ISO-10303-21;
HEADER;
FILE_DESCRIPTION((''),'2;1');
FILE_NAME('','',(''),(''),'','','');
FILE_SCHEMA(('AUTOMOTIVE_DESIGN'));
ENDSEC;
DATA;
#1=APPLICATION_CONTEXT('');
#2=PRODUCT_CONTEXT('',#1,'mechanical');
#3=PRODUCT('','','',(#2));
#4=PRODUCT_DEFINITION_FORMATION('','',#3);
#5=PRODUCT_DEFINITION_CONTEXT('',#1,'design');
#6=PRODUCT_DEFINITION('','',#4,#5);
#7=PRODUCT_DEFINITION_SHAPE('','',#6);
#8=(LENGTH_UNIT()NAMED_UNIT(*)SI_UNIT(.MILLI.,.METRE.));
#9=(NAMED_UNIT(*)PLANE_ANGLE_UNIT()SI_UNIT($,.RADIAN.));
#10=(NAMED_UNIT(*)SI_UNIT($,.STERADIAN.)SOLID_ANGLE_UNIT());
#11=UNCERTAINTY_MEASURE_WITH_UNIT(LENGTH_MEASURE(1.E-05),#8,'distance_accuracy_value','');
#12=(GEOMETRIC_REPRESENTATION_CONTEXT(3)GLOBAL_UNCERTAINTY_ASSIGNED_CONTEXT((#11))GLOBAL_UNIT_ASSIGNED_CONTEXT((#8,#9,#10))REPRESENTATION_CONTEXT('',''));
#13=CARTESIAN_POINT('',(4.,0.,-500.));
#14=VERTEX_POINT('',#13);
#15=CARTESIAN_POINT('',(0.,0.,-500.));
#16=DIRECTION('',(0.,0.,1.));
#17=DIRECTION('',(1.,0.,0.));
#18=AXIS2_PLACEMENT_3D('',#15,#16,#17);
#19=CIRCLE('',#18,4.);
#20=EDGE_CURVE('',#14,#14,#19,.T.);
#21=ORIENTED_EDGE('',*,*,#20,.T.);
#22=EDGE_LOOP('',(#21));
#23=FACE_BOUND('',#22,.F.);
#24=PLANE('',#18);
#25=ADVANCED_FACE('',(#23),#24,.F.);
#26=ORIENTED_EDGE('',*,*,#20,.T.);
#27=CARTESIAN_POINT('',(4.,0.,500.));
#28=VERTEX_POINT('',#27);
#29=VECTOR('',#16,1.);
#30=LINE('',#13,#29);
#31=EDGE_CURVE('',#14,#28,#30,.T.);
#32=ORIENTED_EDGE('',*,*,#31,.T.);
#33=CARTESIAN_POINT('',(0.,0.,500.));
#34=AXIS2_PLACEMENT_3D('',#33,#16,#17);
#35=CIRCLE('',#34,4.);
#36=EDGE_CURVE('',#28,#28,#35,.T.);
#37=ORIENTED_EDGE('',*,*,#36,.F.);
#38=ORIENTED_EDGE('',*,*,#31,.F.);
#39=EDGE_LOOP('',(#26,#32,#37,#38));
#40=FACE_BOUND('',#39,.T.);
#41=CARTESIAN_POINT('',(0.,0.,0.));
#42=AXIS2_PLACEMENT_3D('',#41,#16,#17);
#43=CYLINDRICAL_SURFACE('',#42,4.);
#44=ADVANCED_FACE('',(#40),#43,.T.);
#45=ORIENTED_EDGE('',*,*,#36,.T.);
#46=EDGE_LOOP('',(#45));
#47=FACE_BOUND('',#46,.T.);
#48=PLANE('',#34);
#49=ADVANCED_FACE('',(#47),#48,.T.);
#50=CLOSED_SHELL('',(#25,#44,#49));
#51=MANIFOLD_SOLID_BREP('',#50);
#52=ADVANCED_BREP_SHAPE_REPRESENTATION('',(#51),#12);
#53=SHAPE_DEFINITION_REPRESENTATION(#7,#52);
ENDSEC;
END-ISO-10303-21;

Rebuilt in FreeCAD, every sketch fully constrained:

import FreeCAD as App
import Part
import Sketcher
from FreeCAD import Vector

doc = App.newDocument("Part")
body = doc.addObject("PartDesign::Body", "Body")

# Sketch on XY plane
sketch1 = body.newObject("Sketcher::SketchObject", "Sketch")
sketch1.AttachmentSupport = (doc.getObject("XY_Plane"), [""])
sketch1.MapMode = "FlatFace"
sketch1.addGeometry(Part.Circle(Vector(0, 0, 0), Vector(0, 0, 1), 4), False)
sketch1.addConstraint(Sketcher.Constraint("Coincident", 0, 3, -1, 1))
sketch1.addConstraint(Sketcher.Constraint("Diameter", 0, 8.0))
pad1 = body.newObject("PartDesign::Pad", "Pad")
pad1.Profile = sketch1
pad1.Length = 1000
pad1.Midplane = True

doc.recompute()
